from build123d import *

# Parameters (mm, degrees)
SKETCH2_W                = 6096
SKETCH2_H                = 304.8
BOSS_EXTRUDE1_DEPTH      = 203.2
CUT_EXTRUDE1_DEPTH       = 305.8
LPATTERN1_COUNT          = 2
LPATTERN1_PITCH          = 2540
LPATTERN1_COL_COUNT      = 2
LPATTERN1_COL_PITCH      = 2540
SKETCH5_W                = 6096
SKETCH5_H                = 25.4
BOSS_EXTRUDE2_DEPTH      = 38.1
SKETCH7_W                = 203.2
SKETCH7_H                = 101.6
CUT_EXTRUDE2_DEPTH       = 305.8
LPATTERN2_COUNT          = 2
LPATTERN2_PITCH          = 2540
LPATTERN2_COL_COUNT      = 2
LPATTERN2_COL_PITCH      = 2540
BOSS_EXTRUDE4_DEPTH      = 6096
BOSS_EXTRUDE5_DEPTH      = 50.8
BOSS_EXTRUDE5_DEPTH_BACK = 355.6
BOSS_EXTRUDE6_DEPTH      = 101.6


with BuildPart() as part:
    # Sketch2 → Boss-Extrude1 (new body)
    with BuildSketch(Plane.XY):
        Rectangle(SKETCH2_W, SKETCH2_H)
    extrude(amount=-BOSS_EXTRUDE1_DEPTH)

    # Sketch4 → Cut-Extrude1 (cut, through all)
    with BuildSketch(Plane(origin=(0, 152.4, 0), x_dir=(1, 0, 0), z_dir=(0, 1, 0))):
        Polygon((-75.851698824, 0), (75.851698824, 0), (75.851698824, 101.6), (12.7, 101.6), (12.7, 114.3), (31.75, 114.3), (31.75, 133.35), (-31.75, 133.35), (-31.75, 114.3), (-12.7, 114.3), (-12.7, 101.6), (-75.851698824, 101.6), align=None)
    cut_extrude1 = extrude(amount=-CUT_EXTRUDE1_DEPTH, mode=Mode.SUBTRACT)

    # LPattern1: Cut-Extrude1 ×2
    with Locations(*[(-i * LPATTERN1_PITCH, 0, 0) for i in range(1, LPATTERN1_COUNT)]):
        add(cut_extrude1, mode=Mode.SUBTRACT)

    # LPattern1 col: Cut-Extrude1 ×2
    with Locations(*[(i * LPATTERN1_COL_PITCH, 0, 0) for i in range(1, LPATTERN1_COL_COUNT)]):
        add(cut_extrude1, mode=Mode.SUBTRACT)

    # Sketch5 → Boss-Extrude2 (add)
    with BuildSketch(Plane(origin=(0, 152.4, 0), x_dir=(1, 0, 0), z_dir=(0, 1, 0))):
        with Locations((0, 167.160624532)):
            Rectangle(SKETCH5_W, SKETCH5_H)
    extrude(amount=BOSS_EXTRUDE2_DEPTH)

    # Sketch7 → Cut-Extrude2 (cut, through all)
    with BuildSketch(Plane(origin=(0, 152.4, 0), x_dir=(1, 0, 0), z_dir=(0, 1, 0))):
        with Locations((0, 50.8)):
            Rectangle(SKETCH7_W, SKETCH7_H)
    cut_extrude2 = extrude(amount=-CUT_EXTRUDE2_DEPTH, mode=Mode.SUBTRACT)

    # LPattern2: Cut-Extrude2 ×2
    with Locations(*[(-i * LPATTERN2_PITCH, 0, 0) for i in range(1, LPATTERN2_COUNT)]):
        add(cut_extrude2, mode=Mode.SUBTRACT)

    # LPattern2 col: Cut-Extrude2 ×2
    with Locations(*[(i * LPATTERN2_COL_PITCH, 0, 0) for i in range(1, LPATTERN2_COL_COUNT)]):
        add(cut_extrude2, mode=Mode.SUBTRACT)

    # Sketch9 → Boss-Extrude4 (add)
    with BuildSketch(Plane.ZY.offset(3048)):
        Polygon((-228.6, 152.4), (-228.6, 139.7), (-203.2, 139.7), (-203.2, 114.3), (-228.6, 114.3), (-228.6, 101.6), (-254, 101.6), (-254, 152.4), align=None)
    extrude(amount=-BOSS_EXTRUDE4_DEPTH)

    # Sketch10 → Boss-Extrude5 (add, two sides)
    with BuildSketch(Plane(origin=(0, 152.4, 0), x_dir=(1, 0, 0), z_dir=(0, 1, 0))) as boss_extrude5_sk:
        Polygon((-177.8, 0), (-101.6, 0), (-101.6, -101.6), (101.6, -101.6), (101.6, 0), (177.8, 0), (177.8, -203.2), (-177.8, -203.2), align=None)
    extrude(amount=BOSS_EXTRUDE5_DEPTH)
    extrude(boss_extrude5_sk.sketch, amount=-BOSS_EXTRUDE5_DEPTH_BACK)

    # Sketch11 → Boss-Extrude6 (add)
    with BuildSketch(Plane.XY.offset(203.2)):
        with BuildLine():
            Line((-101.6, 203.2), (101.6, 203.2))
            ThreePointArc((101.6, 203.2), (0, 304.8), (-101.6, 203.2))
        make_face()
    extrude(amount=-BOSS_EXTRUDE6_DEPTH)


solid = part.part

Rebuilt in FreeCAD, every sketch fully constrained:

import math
import FreeCAD as App
import Part
import Sketcher

V = App.Vector
Q = App.Units.Quantity

doc = App.newDocument("Part")
body = doc.addObject("PartDesign::Body", "Body")

sketch1 = body.newObject("Sketcher::SketchObject", "Sketch")
sketch1.AttachmentSupport = (doc.getObject("XY_Plane"), [""])
sketch1.MapMode = "FlatFace"
sketch1.addGeometry([
    Part.LineSegment(V(-3048, 152.4, 0), V(-3048, -152.4, 0)),
    Part.LineSegment(V(-3048, -152.4, 0), V(3048, -152.4, 0)),
    Part.LineSegment(V(3048, -152.4, 0), V(3048, 152.4, 0)),
    Part.LineSegment(V(3048, 152.4, 0), V(-3048, 152.4, 0)),
], False)
sketch1.addConstraint([
    Sketcher.Constraint("Coincident", 0, 2, 1, 1),
    Sketcher.Constraint("Coincident", 1, 2, 2, 1),
    Sketcher.Constraint("Coincident", 2, 2, 3, 1),
    Sketcher.Constraint("Coincident", 3, 2, 0, 1),
    Sketcher.Constraint("Vertical", 0),
    Sketcher.Constraint("Horizontal", 1),
    Sketcher.Constraint("Vertical", 2),
    Sketcher.Constraint("Horizontal", 3),
    Sketcher.Constraint("Symmetric", 0, 2, 2, 2, -1, 1),
    Sketcher.Constraint("DistanceX", 1, 1, 1, 2, Q("240 in")),
    Sketcher.Constraint("DistanceY", 0, 2, 0, 1, Q("12 in")),
])
pad1 = body.newObject("PartDesign::Pad", "Pad")
pad1.Profile = sketch1
pad1.Length = Q("8 in")
pad1.Reversed = True

sketch2 = body.newObject("Sketcher::SketchObject", "Sketch001")
sketch2.AttachmentSupport = (doc.getObject("XZ_Plane"), [""])
sketch2.MapMode = "FlatFace"
sketch2.AttachmentOffset = App.Placement(V(0, 0, -6 * 25.4), App.Rotation())
sketch2.addGeometry([
    Part.LineSegment(V(-75.851699, 0, 0), V(75.851699, 0, 0)),
    Part.LineSegment(V(75.851699, 0, 0), V(75.851699, -101.6, 0)),
    Part.LineSegment(V(75.851699, -101.6, 0), V(12.7, -101.6, 0)),
    Part.LineSegment(V(12.7, -101.6, 0), V(12.7, -114.3, 0)),
    Part.LineSegment(V(12.7, -114.3, 0), V(31.75, -114.3, 0)),
    Part.LineSegment(V(31.75, -114.3, 0), V(31.75, -133.35, 0)),
    Part.LineSegment(V(31.75, -133.35, 0), V(-31.75, -133.35, 0)),
    Part.LineSegment(V(-31.75, -133.35, 0), V(-31.75, -114.3, 0)),
    Part.LineSegment(V(-31.75, -114.3, 0), V(-12.7, -114.3, 0)),
    Part.LineSegment(V(-12.7, -114.3, 0), V(-12.7, -101.6, 0)),
    Part.LineSegment(V(-12.7, -101.6, 0), V(-75.851699, -101.6, 0)),
    Part.LineSegment(V(-75.851699, -101.6, 0), V(-75.851699, 0, 0)),
], False)
sketch2.addConstraint([
    Sketcher.Constraint("Coincident", 0, 2, 1, 1),
    Sketcher.Constraint("Coincident", 1, 2, 2, 1),
    Sketcher.Constraint("Coincident", 2, 2, 3, 1),
    Sketcher.Constraint("Coincident", 3, 2, 4, 1),
    Sketcher.Constraint("Coincident", 4, 2, 5, 1),
    Sketcher.Constraint("Coincident", 5, 2, 6, 1),
    Sketcher.Constraint("Coincident", 6, 2, 7, 1),
    Sketcher.Constraint("Coincident", 7, 2, 8, 1),
    Sketcher.Constraint("Coincident", 8, 2, 9, 1),
    Sketcher.Constraint("Coincident", 9, 2, 10, 1),
    Sketcher.Constraint("Coincident", 10, 2, 11, 1),
    Sketcher.Constraint("Coincident", 11, 2, 0, 1),
    Sketcher.Constraint("Horizontal", 0),
    Sketcher.Constraint("Vertical", 1),
    Sketcher.Constraint("Horizontal", 2),
    Sketcher.Constraint("Vertical", 3),
    Sketcher.Constraint("Horizontal", 4),
    Sketcher.Constraint("Vertical", 5),
    Sketcher.Constraint("Horizontal", 6),
    Sketcher.Constraint("Vertical", 7),
    Sketcher.Constraint("Horizontal", 8),
    Sketcher.Constraint("Vertical", 9),
    Sketcher.Constraint("Horizontal", 10),
    Sketcher.Constraint("Vertical", 11),
    Sketcher.Constraint("Symmetric", 0, 2, 11, 2, -1, 1),
    Sketcher.Constraint("Symmetric", 4, 2, 7, 2, -2),
    Sketcher.Constraint("Symmetric", 2, 2, 9, 2, -2),
    Sketcher.Constraint("Equal", 8, 5),
    Sketcher.Constraint("DistanceY", 1, 2, 1, 1, Q("4 in")),
    Sketcher.Constraint("DistanceX", 6, 2, 6, 1, Q("2.5 in")),
    Sketcher.Constraint("DistanceY", 3, 2, 3, 1, Q("0.5 in")),
    Sketcher.Constraint("DistanceX", 8, 2, 3, 2, Q("1 in")),
    Sketcher.Constraint("DistanceX", 2, 2, 2, 1, Q("63.151699 mm")),
])
pocket1 = body.newObject("PartDesign::Pocket", "Pocket")
pocket1.Profile = sketch2
pocket1.Type = "ThroughAll"
pocket1.Reversed = True
doc.recompute()

linearpattern = body.newObject("PartDesign::LinearPattern", "LinearPattern")
linearpattern.Originals = [pocket1]
linearpattern.Direction = (doc.getObject("X_Axis"), [""])
linearpattern.Mode = "offset"
linearpattern.Offset = Q("100 in")
linearpattern.Occurrences = 2
linearpattern.Reversed = True
body.Tip = linearpattern
doc.recompute()

linearpattern2 = body.newObject("PartDesign::LinearPattern", "LinearPattern001")
linearpattern2.Originals = [pocket1]
linearpattern2.Direction = (doc.getObject("X_Axis"), [""])
linearpattern2.Mode = "offset"
linearpattern2.Offset = Q("100 in")
linearpattern2.Occurrences = 2
body.Tip = linearpattern2

sketch3 = body.newObject("Sketcher::SketchObject", "Sketch002")
sketch3.AttachmentSupport = (doc.getObject("XZ_Plane"), [""])
sketch3.MapMode = "FlatFace"
sketch3.AttachmentOffset = App.Placement(V(0, 0, -6 * 25.4), App.Rotation())
sketch3.addGeometry([
    Part.LineSegment(V(-3048, -179.860625, 0), V(-3048, -154.460625, 0)),
    Part.LineSegment(V(-3048, -154.460625, 0), V(3048, -154.460625, 0)),
    Part.LineSegment(V(3048, -154.460625, 0), V(3048, -179.860625, 0)),
    Part.LineSegment(V(3048, -179.860625, 0), V(-3048, -179.860625, 0)),
], False)
sketch3.addConstraint([
    Sketcher.Constraint("Coincident", 0, 2, 1, 1),
    Sketcher.Constraint("Coincident", 1, 2, 2, 1),
    Sketcher.Constraint("Coincident", 2, 2, 3, 1),
    Sketcher.Constraint("Coincident", 3, 2, 0, 1),
    Sketcher.Constraint("Vertical", 0),
    Sketcher.Constraint("Horizontal", 1),
    Sketcher.Constraint("Vertical", 2),
    Sketcher.Constraint("Horizontal", 3),
    Sketcher.Constraint("DistanceX", 1, 1, 1, 2, Q("240 in")),
    Sketcher.Constraint("DistanceY", 0, 1, 0, 2, Q("1 in")),
    Sketcher.Constraint("DistanceX", 0, 2, -1, 1, Q("120 in")),
    Sketcher.Constraint("DistanceY", 0, 2, -1, 1, Q("154.460625 mm")),
])
pad2 = body.newObject("PartDesign::Pad", "Pad001")
pad2.Profile = sketch3
pad2.Length = Q("1.5 in")
pad2.Reversed = True

sketch4 = body.newObject("Sketcher::SketchObject", "Sketch003")
sketch4.AttachmentSupport = (doc.getObject("XZ_Plane"), [""])
sketch4.MapMode = "FlatFace"
sketch4.AttachmentOffset = App.Placement(V(0, 0, -6 * 25.4), App.Rotation())
sketch4.addGeometry([
    Part.LineSegment(V(-101.6, -101.6, 0), V(-101.6, 0, 0)),
    Part.LineSegment(V(-101.6, 0, 0), V(101.6, 0, 0)),
    Part.LineSegment(V(101.6, 0, 0), V(101.6, -101.6, 0)),
    Part.LineSegment(V(101.6, -101.6, 0), V(-101.6, -101.6, 0)),
], False)
sketch4.addConstraint([
    Sketcher.Constraint("Coincident", 0, 2, 1, 1),
    Sketcher.Constraint("Coincident", 1, 2, 2, 1),
    Sketcher.Constraint("Coincident", 2, 2, 3, 1),
    Sketcher.Constraint("Coincident", 3, 2, 0, 1),
    Sketcher.Constraint("Vertical", 0),
    Sketcher.Constraint("Horizontal", 1),
    Sketcher.Constraint("Vertical", 2),
    Sketcher.Constraint("Horizontal", 3),
    Sketcher.Constraint("Symmetric", 0, 2, 1, 2, -1, 1),
    Sketcher.Constraint("DistanceX", 1, 1, 1, 2, Q("8 in")),
    Sketcher.Constraint("DistanceY", 0, 1, 0, 2, Q("4 in")),
])
pocket2 = body.newObject("PartDesign::Pocket", "Pocket001")
pocket2.Profile = sketch4
pocket2.Type = "ThroughAll"
pocket2.Reversed = True
doc.recompute()

linearpattern3 = body.newObject("PartDesign::LinearPattern", "LinearPattern002")
linearpattern3.Originals = [pocket2]
linearpattern3.Direction = (doc.getObject("X_Axis"), [""])
linearpattern3.Mode = "offset"
linearpattern3.Offset = Q("100 in")
linearpattern3.Occurrences = 2
linearpattern3.Reversed = True
body.Tip = linearpattern3
doc.recompute()

linearpattern4 = body.newObject("PartDesign::LinearPattern", "LinearPattern003")
linearpattern4.Originals = [pocket2]
linearpattern4.Direction = (doc.getObject("X_Axis"), [""])
linearpattern4.Mode = "offset"
linearpattern4.Offset = Q("100 in")
linearpattern4.Occurrences = 2
body.Tip = linearpattern4

sketch5 = body.newObject("Sketcher::SketchObject", "Sketch004")
sketch5.AttachmentSupport = (doc.getObject("YZ_Plane"), [""])
sketch5.MapMode = "FlatFace"
sketch5.AttachmentOffset = App.Placement(V(0, 0, -120 * 25.4), App.Rotation())
sketch5.addGeometry([
    Part.LineSegment(V(139.7, -228.6, 0), V(152.4, -228.6, 0)),
    Part.LineSegment(V(152.4, -228.6, 0), V(152.4, -254, 0)),
    Part.LineSegment(V(152.4, -254, 0), V(101.6, -254, 0)),
    Part.LineSegment(V(101.6, -254, 0), V(101.6, -228.6, 0)),
    Part.LineSegment(V(101.6, -228.6, 0), V(114.3, -228.6, 0)),
    Part.LineSegment(V(114.3, -228.6, 0), V(114.3, -203.2, 0)),
    Part.LineSegment(V(114.3, -203.2, 0), V(139.7, -203.2, 0)),
    Part.LineSegment(V(139.7, -203.2, 0), V(139.7, -228.6, 0)),
], False)
sketch5.addConstraint([
    Sketcher.Constraint("Coincident", 0, 2, 1, 1),
    Sketcher.Constraint("Coincident", 1, 2, 2, 1),
    Sketcher.Constraint("Coincident", 2, 2, 3, 1),
    Sketcher.Constraint("Coincident", 3, 2, 4, 1),
    Sketcher.Constraint("Coincident", 4, 2, 5, 1),
    Sketcher.Constraint("Coincident", 5, 2, 6, 1),
    Sketcher.Constraint("Coincident", 6, 2, 7, 1),
    Sketcher.Constraint("Coincident", 7, 2, 0, 1),
    Sketcher.Constraint("Horizontal", 0),
    Sketcher.Constraint("Vertical", 1),
    Sketcher.Constraint("Horizontal", 2),
    Sketcher.Constraint("Vertical", 3),
    Sketcher.Constraint("Horizontal", 4),
    Sketcher.Constraint("Vertical", 5),
    Sketcher.Constraint("Horizontal", 6),
    Sketcher.Constraint("Vertical", 7),
    Sketcher.Constraint("Horizontal", 0, 2, 3, 2),
    Sketcher.Constraint("Equal", 0, 4),
    Sketcher.Constraint("Equal", 6, 1),
    Sketcher.Constraint("Equal", 3, 5),
    Sketcher.Constraint("DistanceX", 2, 2, 2, 1, Q("2 in")),
    Sketcher.Constraint("DistanceX", 6, 1, 6, 2, Q("1 in")),
    Sketcher.Constraint("DistanceX", -1, 1, 0, 2, Q("6 in")),
    Sketcher.Constraint("DistanceY", 0, 2, -1, 1, Q("9 in")),
])
pad3 = body.newObject("PartDesign::Pad", "Pad002")
pad3.Profile = sketch5
pad3.Length = Q("240 in")

sketch6 = body.newObject("Sketcher::SketchObject", "Sketch005")
sketch6.AttachmentSupport = (doc.getObject("XZ_Plane"), [""])
sketch6.MapMode = "FlatFace"
sketch6.AttachmentOffset = App.Placement(V(0, 0, -6 * 25.4), App.Rotation())
sketch6.addGeometry([
    Part.LineSegment(V(-101.6, 0, 0), V(-177.8, 0, 0)),
    Part.LineSegment(V(-177.8, 0, 0), V(-177.8, 203.2, 0)),
    Part.LineSegment(V(-177.8, 203.2, 0), V(177.8, 203.2, 0)),
    Part.LineSegment(V(177.8, 203.2, 0), V(177.8, 0, 0)),
    Part.LineSegment(V(177.8, 0, 0), V(101.6, 0, 0)),
    Part.LineSegment(V(101.6, 0, 0), V(101.6, 101.6, 0)),
    Part.LineSegment(V(101.6, 101.6, 0), V(-101.6, 101.6, 0)),
    Part.LineSegment(V(-101.6, 101.6, 0), V(-101.6, 0, 0)),
], False)
sketch6.addConstraint([
    Sketcher.Constraint("Coincident", 0, 2, 1, 1),
    Sketcher.Constraint("Coincident", 1, 2, 2, 1),
    Sketcher.Constraint("Coincident", 2, 2, 3, 1),
    Sketcher.Constraint("Coincident", 3, 2, 4, 1),
    Sketcher.Constraint("Coincident", 4, 2, 5, 1),
    Sketcher.Constraint("Coincident", 5, 2, 6, 1),
    Sketcher.Constraint("Coincident", 6, 2, 7, 1),
    Sketcher.Constraint("Coincident", 7, 2, 0, 1),
    Sketcher.Constraint("Horizontal", 0),
    Sketcher.Constraint("Vertical", 1),
    Sketcher.Constraint("Horizontal", 2),
    Sketcher.Constraint("Vertical", 3),
    Sketcher.Constraint("Horizontal", 4),
    Sketcher.Constraint("Vertical", 5),
    Sketcher.Constraint("Horizontal", 6),
    Sketcher.Constraint("Vertical", 7),
    Sketcher.Constraint("Symmetric", 0, 2, 3, 2, -1, 1),
    Sketcher.Constraint("Symmetric", 4, 2, 7, 2, -2),
    Sketcher.Constraint("Equal", 6, 1),
    Sketcher.Constraint("DistanceX", 0, 2, 0, 1, Q("3 in")),
    Sketcher.Constraint("DistanceX", 2, 1, 2, 2, Q("14 in")),
    Sketcher.Constraint("DistanceY", 5, 1, 5, 2, Q("4 in")),
])
pad4 = body.newObject("PartDesign::Pad", "Pad003")
pad4.Profile = sketch6
pad4.Type = "TwoLengths"
pad4.Length = Q("2 in")
pad4.Length2 = Q("14 in")
pad4.Reversed = True

sketch7 = body.newObject("Sketcher::SketchObject", "Sketch006")
sketch7.AttachmentSupport = (doc.getObject("XY_Plane"), [""])
sketch7.MapMode = "FlatFace"
sketch7.AttachmentOffset = App.Placement(V(0, 0, 8 * 25.4), App.Rotation())
sketch7.addGeometry([
    Part.LineSegment(V(-101.6, 203.2, 0), V(101.6, 203.2, 0)),
    Part.ArcOfCircle(Part.Circle(V(0, 203.2, 0), V(0, 0, 1), 101.6), math.radians(0), math.radians(180)),
], False)
sketch7.addConstraint([
    Sketcher.Constraint("Coincident", 0, 1, 1, 2),
    Sketcher.Constraint("Coincident", 1, 1, 0, 2),
    Sketcher.Constraint("Horizontal", 0),
    Sketcher.Constraint("PointOnObject", 1, 3, -2),
    Sketcher.Constraint("Horizontal", 1, 3, 0, 1),
    Sketcher.Constraint("Radius", 1, Q("4 in")),
    Sketcher.Constraint("DistanceY", -1, 1, 1, 3, Q("8 in")),
])
pad5 = body.newObject("PartDesign::Pad", "Pad004")
pad5.Profile = sketch7
pad5.Length = Q("4 in")
pad5.Reversed = True

doc.recompute()
